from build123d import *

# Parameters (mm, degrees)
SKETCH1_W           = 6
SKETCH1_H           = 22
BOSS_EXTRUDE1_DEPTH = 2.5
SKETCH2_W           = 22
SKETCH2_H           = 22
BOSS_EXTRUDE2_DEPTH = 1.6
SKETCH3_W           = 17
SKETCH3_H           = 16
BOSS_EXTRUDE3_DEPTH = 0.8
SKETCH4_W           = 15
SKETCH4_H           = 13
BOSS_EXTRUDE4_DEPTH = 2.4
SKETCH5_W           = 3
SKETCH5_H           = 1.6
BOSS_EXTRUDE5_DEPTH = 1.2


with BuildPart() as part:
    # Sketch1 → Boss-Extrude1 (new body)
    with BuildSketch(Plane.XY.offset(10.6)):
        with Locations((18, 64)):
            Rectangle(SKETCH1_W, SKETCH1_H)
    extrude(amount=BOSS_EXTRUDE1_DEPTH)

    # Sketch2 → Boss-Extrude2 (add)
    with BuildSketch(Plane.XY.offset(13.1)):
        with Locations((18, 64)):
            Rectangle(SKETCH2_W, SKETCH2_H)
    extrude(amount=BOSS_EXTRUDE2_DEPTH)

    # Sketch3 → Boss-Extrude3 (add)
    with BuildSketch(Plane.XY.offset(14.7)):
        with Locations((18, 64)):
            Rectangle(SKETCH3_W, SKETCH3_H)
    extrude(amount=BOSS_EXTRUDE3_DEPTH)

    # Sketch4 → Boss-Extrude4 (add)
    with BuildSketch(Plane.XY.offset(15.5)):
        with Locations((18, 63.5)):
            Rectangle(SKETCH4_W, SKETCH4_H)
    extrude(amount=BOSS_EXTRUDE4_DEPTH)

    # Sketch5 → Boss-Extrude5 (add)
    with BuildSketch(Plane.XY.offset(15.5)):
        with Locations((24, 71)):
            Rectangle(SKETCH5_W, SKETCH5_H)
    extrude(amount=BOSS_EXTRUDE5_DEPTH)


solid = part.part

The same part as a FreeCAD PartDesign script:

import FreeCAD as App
import Part
import Sketcher
Q = App.Units.Quantity


def add_polygon(sketch, points):
    """Adds a closed chain of lines whose ends are joined by coincident constraints."""
    first, n = sketch.GeometryCount, len(points)
    for a, b in zip(points, points[1:] + points[:1]):
        sketch.addGeometry(Part.LineSegment(App.Vector(*a, 0), App.Vector(*b, 0)), False)
    for i in range(n):
        sketch.addConstraint(Sketcher.Constraint("Coincident", first + i, 2, first + (i + 1) % n, 1))

doc = App.newDocument("Part")
params = doc.addObject("Spreadsheet::Sheet", "Params")
for row, (alias, value) in enumerate([
    ("sketch1_width", "6 mm"),
    ("sketch1_height", "22 mm"),
    ("pad1_length", "2.5 mm"),
    ("sketch2_width", "22 mm"),
    ("pad2_length", "1.6 mm"),
    ("sketch3_width", "17 mm"),
    ("sketch3_height", "16 mm"),
    ("pad3_length", "0.8 mm"),
    ("sketch4_width", "15 mm"),
    ("sketch4_height", "13 mm"),
    ("pad4_length", "2.4 mm"),
    ("sketch5_width", "3 mm"),
    ("sketch5_height", "1.6 mm"),
    ("pad5_length", "1.2 mm"),
], start=1):
    params.set(f"A{row}", alias)
    params.set(f"B{row}", "=" + value)
    params.setAlias(f"B{row}", alias)

body = doc.addObject("PartDesign::Body", "Body")

# Sketch on XY plane
sketch1 = doc.addObject("Sketcher::SketchObject", "Sketch")
body.addObject(sketch1)
sketch1.AttachmentSupport = (doc.XY_Plane, [""])
sketch1.MapMode = "FlatFace"
sketch1.AttachmentOffset = App.Placement(App.Vector(0, 0, 10.6), App.Rotation())
add_polygon(sketch1, [(15, 75), (15, 53), (21, 53), (21, 75)])  # lines 0-3
sketch1.addConstraint(Sketcher.Constraint("Vertical", 0))
sketch1.addConstraint(Sketcher.Constraint("Horizontal", 1))
sketch1.addConstraint(Sketcher.Constraint("Vertical", 2))
sketch1.addConstraint(Sketcher.Constraint("Horizontal", 3))
sketch1.addConstraint(Sketcher.Constraint("DistanceX", 1, 1, 1, 2, Q("6 mm")))
sketch1.addConstraint(Sketcher.Constraint("DistanceY", 0, 2, 0, 1, Q("22 mm")))
sketch1.addConstraint(Sketcher.Constraint("DistanceX", -1, 1, 0, 2, Q("15 mm")))
sketch1.addConstraint(Sketcher.Constraint("DistanceY", -1, 1, 0, 2, Q("53 mm")))
sketch1.setExpression("Constraints[8]", "Params.sketch1_width")
sketch1.setExpression("Constraints[9]", "Params.sketch1_height")
pad1 = doc.addObject("PartDesign::Pad", "Pad")
body.addObject(pad1)
pad1.Profile = sketch1
pad1.setExpression("Length", "Params.pad1_length")

# Sketch on XY plane
sketch2 = doc.addObject("Sketcher::SketchObject", "Sketch001")
body.addObject(sketch2)
sketch2.AttachmentSupport = (doc.XY_Plane, [""])
sketch2.MapMode = "FlatFace"
sketch2.AttachmentOffset = App.Placement(App.Vector(0, 0, 13.1), App.Rotation())
add_polygon(sketch2, [(7, 75), (7, 53), (29, 53), (29, 75)])  # lines 0-3
sketch2.addConstraint(Sketcher.Constraint("Vertical", 0))
sketch2.addConstraint(Sketcher.Constraint("Horizontal", 1))
sketch2.addConstraint(Sketcher.Constraint("Vertical", 2))
sketch2.addConstraint(Sketcher.Constraint("Horizontal", 3))
sketch2.addConstraint(Sketcher.Constraint("Equal", 3, 0))
sketch2.addConstraint(Sketcher.Constraint("DistanceX", 1, 1, 1, 2, Q("22 mm")))
sketch2.addConstraint(Sketcher.Constraint("DistanceX", -1, 1, 0, 2, Q("7 mm")))
sketch2.addConstraint(Sketcher.Constraint("DistanceY", -1, 1, 0, 2, Q("53 mm")))
sketch2.setExpression("Constraints[9]", "Params.sketch2_width")
pad2 = doc.addObject("PartDesign::Pad", "Pad001")
body.addObject(pad2)
pad2.Profile = sketch2
pad2.setExpression("Length", "Params.pad2_length")

# Sketch on XY plane
sketch3 = doc.addObject("Sketcher::SketchObject", "Sketch002")
body.addObject(sketch3)
sketch3.AttachmentSupport = (doc.XY_Plane, [""])
sketch3.MapMode = "FlatFace"
sketch3.AttachmentOffset = App.Placement(App.Vector(0, 0, 14.7), App.Rotation())
add_polygon(sketch3, [(9.5, 72), (9.5, 56), (26.5, 56), (26.5, 72)])  # lines 0-3
sketch3.addConstraint(Sketcher.Constraint("Vertical", 0))
sketch3.addConstraint(Sketcher.Constraint("Horizontal", 1))
sketch3.addConstraint(Sketcher.Constraint("Vertical", 2))
sketch3.addConstraint(Sketcher.Constraint("Horizontal", 3))
sketch3.addConstraint(Sketcher.Constraint("DistanceX", 1, 1, 1, 2, Q("17 mm")))
sketch3.addConstraint(Sketcher.Constraint("DistanceY", 0, 2, 0, 1, Q("16 mm")))
sketch3.addConstraint(Sketcher.Constraint("DistanceY", -1, 1, 0, 2, Q("56 mm")))
sketch3.addConstraint(Sketcher.Constraint("DistanceX", -1, 1, 0, 2, Q("9.5 mm")))
sketch3.setExpression("Constraints[8]", "Params.sketch3_width")
sketch3.setExpression("Constraints[9]", "Params.sketch3_height")
pad3 = doc.addObject("PartDesign::Pad", "Pad002")
body.addObject(pad3)
pad3.Profile = sketch3
pad3.setExpression("Length", "Params.pad3_length")

# Sketch on XY plane
sketch4 = doc.addObject("Sketcher::SketchObject", "Sketch003")
body.addObject(sketch4)
sketch4.AttachmentSupport = (doc.XY_Plane, [""])
sketch4.MapMode = "FlatFace"
sketch4.AttachmentOffset = App.Placement(App.Vector(0, 0, 15.5), App.Rotation())
add_polygon(sketch4, [(10.5, 70), (10.5, 57), (25.5, 57), (25.5, 70)])  # lines 0-3
sketch4.addConstraint(Sketcher.Constraint("Vertical", 0))
sketch4.addConstraint(Sketcher.Constraint("Horizontal", 1))
sketch4.addConstraint(Sketcher.Constraint("Vertical", 2))
sketch4.addConstraint(Sketcher.Constraint("Horizontal", 3))
sketch4.addConstraint(Sketcher.Constraint("DistanceX", 1, 1, 1, 2, Q("15 mm")))
sketch4.addConstraint(Sketcher.Constraint("DistanceY", 0, 2, 0, 1, Q("13 mm")))
sketch4.addConstraint(Sketcher.Constraint("DistanceY", -1, 1, 0, 2, Q("57 mm")))
sketch4.addConstraint(Sketcher.Constraint("DistanceX", -1, 1, 0, 2, Q("10.5 mm")))
sketch4.setExpression("Constraints[8]", "Params.sketch4_width")
sketch4.setExpression("Constraints[9]", "Params.sketch4_height")
pad4 = doc.addObject("PartDesign::Pad", "Pad003")
body.addObject(pad4)
pad4.Profile = sketch4
pad4.setExpression("Length", "Params.pad4_length")

# Sketch on XY plane
sketch5 = doc.addObject("Sketcher::SketchObject", "Sketch004")
body.addObject(sketch5)
sketch5.AttachmentSupport = (doc.XY_Plane, [""])
sketch5.MapMode = "FlatFace"
sketch5.AttachmentOffset = App.Placement(App.Vector(0, 0, 15.5), App.Rotation())
add_polygon(sketch5, [(22.5, 71.8), (22.5, 70.2), (25.5, 70.2), (25.5, 71.8)])  # lines 0-3
sketch5.addConstraint(Sketcher.Constraint("Vertical", 0))
sketch5.addConstraint(Sketcher.Constraint("Horizontal", 1))
sketch5.addConstraint(Sketcher.Constraint("Vertical", 2))
sketch5.addConstraint(Sketcher.Constraint("Horizontal", 3))
sketch5.addConstraint(Sketcher.Constraint("DistanceX", 1, 1, 1, 2, Q("3 mm")))
sketch5.addConstraint(Sketcher.Constraint("DistanceY", 0, 2, 0, 1, Q("1.6 mm")))
sketch5.addConstraint(Sketcher.Constraint("DistanceX", -1, 1, 0, 2, Q("22.5 mm")))
sketch5.addConstraint(Sketcher.Constraint("DistanceY", -1, 1, 0, 2, Q("70.2 mm")))
sketch5.setExpression("Constraints[8]", "Params.sketch5_width")
sketch5.setExpression("Constraints[9]", "Params.sketch5_height")
pad5 = doc.addObject("PartDesign::Pad", "Pad004")
body.addObject(pad5)
pad5.Profile = sketch5
pad5.setExpression("Length", "Params.pad5_length")

doc.recompute()
